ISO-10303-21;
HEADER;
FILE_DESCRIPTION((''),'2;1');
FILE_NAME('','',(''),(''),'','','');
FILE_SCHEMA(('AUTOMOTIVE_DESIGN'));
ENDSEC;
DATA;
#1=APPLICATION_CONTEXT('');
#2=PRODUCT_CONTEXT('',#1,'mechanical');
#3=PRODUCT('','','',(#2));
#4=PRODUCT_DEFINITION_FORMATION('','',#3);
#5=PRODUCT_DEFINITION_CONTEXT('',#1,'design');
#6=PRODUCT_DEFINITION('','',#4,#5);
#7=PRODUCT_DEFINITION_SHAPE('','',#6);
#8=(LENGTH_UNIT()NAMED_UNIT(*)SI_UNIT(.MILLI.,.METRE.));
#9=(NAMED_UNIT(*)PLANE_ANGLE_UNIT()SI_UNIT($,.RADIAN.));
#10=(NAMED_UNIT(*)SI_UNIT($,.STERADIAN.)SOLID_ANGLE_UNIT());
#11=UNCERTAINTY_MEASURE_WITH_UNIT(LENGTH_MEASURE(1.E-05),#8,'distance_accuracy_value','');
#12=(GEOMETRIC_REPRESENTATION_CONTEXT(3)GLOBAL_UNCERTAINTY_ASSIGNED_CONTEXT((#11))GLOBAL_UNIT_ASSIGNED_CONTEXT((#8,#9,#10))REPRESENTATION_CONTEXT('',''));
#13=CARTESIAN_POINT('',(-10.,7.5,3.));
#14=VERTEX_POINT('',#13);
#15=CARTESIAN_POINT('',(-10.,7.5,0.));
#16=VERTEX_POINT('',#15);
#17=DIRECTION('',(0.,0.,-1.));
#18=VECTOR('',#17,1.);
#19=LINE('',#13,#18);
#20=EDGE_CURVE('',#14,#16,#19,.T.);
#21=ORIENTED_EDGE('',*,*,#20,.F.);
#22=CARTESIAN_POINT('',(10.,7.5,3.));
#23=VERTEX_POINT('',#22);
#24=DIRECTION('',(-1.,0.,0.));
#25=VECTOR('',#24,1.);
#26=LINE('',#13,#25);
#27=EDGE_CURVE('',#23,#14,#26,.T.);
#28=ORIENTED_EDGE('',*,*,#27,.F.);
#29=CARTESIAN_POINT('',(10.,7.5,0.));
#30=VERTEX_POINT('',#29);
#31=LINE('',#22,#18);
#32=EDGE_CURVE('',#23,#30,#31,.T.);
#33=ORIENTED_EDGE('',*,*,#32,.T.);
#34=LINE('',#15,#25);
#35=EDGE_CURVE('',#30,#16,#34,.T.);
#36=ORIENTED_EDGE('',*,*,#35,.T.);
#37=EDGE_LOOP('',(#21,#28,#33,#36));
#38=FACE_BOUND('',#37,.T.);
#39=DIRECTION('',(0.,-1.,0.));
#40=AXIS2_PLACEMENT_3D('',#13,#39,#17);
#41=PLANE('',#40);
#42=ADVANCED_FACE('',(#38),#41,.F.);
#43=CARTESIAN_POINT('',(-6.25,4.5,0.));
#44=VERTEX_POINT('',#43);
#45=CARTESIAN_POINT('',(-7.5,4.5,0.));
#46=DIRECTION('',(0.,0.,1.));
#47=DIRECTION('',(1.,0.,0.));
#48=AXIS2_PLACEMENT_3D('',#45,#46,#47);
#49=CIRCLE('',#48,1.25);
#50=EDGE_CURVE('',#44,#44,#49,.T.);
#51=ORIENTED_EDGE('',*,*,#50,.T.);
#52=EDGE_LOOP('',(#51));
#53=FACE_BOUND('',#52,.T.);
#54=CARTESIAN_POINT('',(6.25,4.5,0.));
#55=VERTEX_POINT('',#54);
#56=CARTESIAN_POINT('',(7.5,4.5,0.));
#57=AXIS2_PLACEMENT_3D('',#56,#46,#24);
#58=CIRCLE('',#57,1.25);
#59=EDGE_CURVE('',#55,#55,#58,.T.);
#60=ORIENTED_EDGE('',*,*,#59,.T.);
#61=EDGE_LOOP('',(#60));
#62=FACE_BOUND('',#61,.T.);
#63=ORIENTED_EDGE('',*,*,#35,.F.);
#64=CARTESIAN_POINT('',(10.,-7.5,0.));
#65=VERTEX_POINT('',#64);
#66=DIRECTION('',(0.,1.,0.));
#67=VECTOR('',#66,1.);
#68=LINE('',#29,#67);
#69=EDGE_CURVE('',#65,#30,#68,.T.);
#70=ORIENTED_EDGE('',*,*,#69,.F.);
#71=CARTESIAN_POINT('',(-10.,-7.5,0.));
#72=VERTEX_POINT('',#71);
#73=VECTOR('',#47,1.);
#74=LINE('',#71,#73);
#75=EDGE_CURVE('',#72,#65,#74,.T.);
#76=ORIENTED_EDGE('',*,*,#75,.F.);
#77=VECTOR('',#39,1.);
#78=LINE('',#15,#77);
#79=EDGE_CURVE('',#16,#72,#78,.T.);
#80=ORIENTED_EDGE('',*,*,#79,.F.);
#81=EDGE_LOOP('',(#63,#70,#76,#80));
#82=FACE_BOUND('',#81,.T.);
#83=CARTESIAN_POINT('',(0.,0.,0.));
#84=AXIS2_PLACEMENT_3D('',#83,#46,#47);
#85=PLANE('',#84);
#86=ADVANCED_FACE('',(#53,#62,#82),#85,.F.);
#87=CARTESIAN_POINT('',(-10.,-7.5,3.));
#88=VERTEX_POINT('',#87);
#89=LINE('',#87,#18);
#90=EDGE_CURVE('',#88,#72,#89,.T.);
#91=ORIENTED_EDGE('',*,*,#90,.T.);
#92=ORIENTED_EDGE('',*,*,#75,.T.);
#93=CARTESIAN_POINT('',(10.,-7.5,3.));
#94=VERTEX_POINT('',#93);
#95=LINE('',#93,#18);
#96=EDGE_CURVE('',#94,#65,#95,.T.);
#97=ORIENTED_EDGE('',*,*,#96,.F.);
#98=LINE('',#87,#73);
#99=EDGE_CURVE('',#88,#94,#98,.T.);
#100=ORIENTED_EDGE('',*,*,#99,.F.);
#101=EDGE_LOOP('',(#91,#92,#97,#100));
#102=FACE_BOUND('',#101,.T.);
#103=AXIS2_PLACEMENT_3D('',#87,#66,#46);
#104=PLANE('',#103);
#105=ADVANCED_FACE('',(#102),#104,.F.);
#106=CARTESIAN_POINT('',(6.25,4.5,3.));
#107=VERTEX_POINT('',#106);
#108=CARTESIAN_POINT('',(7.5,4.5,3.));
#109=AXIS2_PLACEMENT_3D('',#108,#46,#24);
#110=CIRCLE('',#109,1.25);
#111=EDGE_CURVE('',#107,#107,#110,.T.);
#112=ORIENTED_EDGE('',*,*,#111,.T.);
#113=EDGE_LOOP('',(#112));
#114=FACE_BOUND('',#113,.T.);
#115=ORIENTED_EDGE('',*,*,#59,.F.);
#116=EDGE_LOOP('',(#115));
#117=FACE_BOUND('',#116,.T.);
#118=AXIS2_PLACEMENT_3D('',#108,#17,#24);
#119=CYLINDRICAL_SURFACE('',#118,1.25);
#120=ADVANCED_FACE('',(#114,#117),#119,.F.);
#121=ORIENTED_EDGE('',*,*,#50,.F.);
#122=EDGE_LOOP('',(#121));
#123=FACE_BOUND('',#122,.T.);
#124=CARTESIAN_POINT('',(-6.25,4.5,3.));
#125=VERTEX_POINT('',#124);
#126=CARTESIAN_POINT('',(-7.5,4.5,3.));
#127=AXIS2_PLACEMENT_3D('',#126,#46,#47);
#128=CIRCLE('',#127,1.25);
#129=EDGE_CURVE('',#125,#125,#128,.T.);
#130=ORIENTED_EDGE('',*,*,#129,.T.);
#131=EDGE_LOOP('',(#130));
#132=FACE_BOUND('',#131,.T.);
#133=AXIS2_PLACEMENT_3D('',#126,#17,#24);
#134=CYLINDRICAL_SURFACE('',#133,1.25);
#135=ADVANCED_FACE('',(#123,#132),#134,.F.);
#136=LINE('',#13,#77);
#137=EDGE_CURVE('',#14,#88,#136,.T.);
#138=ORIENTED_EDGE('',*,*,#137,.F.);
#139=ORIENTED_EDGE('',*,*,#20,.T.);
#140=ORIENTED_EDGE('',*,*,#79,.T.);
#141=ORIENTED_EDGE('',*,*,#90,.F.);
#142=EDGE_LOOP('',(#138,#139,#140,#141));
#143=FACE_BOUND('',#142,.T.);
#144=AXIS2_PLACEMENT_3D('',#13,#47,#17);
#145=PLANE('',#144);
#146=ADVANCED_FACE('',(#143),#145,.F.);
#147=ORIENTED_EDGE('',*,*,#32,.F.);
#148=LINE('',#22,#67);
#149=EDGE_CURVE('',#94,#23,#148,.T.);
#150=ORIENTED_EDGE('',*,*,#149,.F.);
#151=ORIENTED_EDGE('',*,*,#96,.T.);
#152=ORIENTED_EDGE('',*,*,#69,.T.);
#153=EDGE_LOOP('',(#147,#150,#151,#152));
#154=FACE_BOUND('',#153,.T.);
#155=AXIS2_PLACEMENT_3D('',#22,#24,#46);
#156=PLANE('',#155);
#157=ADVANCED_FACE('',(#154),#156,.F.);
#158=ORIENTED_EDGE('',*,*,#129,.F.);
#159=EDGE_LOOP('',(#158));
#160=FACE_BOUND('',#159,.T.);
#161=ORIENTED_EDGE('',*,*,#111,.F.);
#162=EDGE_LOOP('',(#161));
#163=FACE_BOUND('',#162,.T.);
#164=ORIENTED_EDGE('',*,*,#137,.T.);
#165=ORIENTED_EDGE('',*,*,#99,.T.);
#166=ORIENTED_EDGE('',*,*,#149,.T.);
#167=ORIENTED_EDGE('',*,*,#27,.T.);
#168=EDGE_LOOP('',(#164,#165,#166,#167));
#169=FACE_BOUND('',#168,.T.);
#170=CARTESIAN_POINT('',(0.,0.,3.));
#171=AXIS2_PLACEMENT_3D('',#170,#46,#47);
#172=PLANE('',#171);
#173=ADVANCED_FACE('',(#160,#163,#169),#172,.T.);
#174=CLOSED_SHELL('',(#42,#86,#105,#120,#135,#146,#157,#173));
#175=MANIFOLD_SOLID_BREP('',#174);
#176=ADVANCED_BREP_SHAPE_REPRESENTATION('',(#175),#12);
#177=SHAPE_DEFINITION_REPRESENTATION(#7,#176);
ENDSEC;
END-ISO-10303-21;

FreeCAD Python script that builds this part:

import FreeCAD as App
import Part
import Sketcher
from FreeCAD import Vector
Q = App.Units.Quantity

doc = App.newDocument("Part")
body = doc.addObject("PartDesign::Body", "Body")

# Sketch on XY plane
sketch1 = body.newObject("Sketcher::SketchObject", "Sketch")
sketch1.AttachmentSupport = (doc.getObject("XY_Plane"), [""])
sketch1.MapMode = "FlatFace"
sketch1.addGeometry([
    Part.LineSegment(Vector(-10, 7.5, 0), Vector(-10, -7.5, 0)),  # 0
    Part.LineSegment(Vector(-10, -7.5, 0), Vector(10, -7.5, 0)),  # 1
    Part.LineSegment(Vector(10, -7.5, 0), Vector(10, 7.5, 0)),  # 2
    Part.LineSegment(Vector(10, 7.5, 0), Vector(-10, 7.5, 0)),  # 3
    Part.Circle(Vector(-7.5, 4.5, 0), Vector(0, 0, 1), 1.2),  # 4
    Part.Circle(Vector(7.5, 4.5, 0), Vector(0, 0, 1), 1.2),  # 5
], False)
sketch1.addConstraint([
    Sketcher.Constraint("Coincident", 0, 2, 1, 1),
    Sketcher.Constraint("Coincident", 1, 2, 2, 1),
    Sketcher.Constraint("Coincident", 2, 2, 3, 1),
    Sketcher.Constraint("Coincident", 3, 2, 0, 1),
    Sketcher.Constraint("Vertical", 0),
    Sketcher.Constraint("Horizontal", 1),
    Sketcher.Constraint("Vertical", 2),
    Sketcher.Constraint("Horizontal", 3),
    Sketcher.Constraint("Equal", 4, 5),
    Sketcher.Constraint("Symmetric", 0, 2, 2, 2, -1, 1),
    Sketcher.Constraint("Symmetric", 4, 3, 5, 3, -2),
    Sketcher.Constraint("Diameter", 4, Q("2.5 mm")),
    Sketcher.Constraint("DistanceX", 1, 1, 1, 2, Q("20 mm")),
    Sketcher.Constraint("DistanceY", 0, 2, 0, 1, Q("15 mm")),
    Sketcher.Constraint("DistanceX", 4, 3, 5, 3, Q("15 mm")),
    Sketcher.Constraint("DistanceY", 0, 2, 4, 3, Q("12 mm")),
])
pad1 = body.newObject("PartDesign::Pad", "Pad")
pad1.Profile = sketch1
pad1.Length = 3

doc.recompute()
